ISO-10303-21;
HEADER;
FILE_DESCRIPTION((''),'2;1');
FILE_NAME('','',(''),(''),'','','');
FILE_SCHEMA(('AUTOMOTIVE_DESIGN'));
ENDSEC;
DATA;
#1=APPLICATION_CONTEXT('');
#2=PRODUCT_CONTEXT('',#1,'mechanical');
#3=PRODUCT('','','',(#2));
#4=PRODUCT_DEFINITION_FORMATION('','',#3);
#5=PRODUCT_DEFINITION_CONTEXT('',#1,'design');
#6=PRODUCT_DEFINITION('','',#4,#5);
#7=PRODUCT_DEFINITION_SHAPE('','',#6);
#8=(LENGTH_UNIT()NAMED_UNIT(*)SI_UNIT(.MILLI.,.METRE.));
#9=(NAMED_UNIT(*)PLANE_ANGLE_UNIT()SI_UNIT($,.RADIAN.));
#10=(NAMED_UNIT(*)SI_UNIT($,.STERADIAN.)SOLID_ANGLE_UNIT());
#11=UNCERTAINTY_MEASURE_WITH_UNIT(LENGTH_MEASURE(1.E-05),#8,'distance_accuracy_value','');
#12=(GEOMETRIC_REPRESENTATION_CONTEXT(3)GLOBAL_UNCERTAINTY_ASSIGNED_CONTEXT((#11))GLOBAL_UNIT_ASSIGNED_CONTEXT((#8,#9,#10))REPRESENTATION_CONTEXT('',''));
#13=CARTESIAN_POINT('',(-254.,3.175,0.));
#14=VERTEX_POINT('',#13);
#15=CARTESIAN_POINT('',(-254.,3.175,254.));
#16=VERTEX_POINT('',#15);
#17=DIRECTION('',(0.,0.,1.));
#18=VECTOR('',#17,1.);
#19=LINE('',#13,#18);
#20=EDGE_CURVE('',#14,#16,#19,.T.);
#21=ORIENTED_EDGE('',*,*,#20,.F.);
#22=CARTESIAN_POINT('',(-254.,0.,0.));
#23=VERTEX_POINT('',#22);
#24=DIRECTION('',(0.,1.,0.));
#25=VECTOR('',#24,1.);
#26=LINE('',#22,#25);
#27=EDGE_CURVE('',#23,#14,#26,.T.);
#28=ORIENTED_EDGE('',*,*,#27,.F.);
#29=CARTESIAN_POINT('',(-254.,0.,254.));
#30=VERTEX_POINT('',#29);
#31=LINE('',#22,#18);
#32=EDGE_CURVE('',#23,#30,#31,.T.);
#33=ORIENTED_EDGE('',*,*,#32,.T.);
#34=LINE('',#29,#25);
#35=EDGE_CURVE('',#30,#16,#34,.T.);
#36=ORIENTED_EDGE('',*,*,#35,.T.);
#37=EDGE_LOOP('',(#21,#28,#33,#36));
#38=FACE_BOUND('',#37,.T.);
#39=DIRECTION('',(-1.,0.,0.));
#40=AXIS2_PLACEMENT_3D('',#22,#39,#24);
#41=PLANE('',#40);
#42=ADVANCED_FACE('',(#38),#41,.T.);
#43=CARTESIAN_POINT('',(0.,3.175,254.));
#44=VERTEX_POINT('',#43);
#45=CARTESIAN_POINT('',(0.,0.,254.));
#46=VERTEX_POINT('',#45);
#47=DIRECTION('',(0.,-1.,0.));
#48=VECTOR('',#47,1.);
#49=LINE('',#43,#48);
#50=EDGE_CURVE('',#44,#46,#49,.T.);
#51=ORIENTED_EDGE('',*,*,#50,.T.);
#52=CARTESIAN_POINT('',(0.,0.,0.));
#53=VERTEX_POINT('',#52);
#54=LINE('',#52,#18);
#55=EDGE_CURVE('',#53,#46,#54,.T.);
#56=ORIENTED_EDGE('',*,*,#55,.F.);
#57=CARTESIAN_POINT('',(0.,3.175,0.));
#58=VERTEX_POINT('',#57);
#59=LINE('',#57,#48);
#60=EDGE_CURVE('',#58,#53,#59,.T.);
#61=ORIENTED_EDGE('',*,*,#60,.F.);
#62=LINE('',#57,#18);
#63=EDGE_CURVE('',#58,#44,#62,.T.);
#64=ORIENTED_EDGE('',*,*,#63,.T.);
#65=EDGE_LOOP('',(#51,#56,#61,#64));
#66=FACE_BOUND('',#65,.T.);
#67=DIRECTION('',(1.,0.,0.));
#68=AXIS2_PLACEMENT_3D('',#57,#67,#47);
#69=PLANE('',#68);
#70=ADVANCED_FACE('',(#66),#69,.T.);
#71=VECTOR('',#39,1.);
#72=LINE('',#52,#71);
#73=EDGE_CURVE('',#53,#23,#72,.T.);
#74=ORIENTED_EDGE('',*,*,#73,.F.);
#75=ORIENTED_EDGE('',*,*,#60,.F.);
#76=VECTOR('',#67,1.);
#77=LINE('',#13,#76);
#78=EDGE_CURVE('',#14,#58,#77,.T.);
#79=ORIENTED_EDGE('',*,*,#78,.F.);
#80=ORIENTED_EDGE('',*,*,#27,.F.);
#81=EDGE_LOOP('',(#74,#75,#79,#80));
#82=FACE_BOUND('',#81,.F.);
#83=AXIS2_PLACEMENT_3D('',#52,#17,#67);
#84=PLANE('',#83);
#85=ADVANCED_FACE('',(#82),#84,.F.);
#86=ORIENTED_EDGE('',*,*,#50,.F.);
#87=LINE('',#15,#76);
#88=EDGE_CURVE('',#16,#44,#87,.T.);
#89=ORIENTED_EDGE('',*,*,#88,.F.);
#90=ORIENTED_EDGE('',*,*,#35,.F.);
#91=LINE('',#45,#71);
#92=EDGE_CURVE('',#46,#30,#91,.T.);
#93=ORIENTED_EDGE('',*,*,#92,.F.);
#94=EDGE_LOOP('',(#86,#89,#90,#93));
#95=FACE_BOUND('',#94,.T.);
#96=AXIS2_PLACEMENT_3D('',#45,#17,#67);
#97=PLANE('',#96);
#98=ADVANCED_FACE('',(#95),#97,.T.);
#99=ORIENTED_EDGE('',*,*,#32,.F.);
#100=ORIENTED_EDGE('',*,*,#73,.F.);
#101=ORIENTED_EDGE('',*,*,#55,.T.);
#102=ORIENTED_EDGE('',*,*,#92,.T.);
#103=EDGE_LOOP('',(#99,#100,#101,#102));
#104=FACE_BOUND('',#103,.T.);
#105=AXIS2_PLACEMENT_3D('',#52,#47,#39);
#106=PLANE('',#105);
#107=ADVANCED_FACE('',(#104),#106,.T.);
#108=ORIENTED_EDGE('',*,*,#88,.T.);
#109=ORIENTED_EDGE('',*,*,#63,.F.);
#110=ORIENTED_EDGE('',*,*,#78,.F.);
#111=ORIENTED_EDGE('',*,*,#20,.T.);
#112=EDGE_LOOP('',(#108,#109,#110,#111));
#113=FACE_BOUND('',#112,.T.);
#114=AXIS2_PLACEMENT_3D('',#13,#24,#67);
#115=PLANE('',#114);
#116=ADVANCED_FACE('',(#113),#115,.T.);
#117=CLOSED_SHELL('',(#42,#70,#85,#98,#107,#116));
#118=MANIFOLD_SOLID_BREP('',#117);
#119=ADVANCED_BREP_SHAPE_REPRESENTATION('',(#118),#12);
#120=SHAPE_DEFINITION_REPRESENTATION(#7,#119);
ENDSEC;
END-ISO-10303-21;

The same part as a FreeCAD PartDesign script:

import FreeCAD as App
import Part
import Sketcher
from FreeCAD import Vector
Q = App.Units.Quantity

doc = App.newDocument("Part")
body = doc.addObject("PartDesign::Body", "Body")

sketch1 = doc.addObject("Sketcher::SketchObject", "Sketch")
body.addObject(sketch1)
sketch1.AttachmentSupport = (doc.XY_Plane, [""])
sketch1.MapMode = "FlatFace"
sketch1.addGeometry(Part.LineSegment(Vector(-254, 0, 0), Vector(0, 0, 0)), False)
sketch1.addGeometry(Part.LineSegment(Vector(0, 0, 0), Vector(0, 3.2, 0)), False)
sketch1.addGeometry(Part.LineSegment(Vector(0, 3.2, 0), Vector(-254, 3.2, 0)), False)
sketch1.addGeometry(Part.LineSegment(Vector(-254, 3.2, 0), Vector(-254, 0, 0)), False)
sketch1.addConstraint(Sketcher.Constraint("Coincident", 0, 2, 1, 1))
sketch1.addConstraint(Sketcher.Constraint("Coincident", 1, 2, 2, 1))
sketch1.addConstraint(Sketcher.Constraint("Coincident", 2, 2, 3, 1))
sketch1.addConstraint(Sketcher.Constraint("Coincident", 3, 2, 0, 1))
sketch1.addConstraint(Sketcher.Constraint("Horizontal", 0))
sketch1.addConstraint(Sketcher.Constraint("Vertical", 1))
sketch1.addConstraint(Sketcher.Constraint("Horizontal", 2))
sketch1.addConstraint(Sketcher.Constraint("Vertical", 3))
sketch1.addConstraint(Sketcher.Constraint("Coincident", 0, 2, -1, 1))
sketch1.addConstraint(Sketcher.Constraint("DistanceX", 0, 1, 0, 2, Q("10 in")))
sketch1.addConstraint(Sketcher.Constraint("DistanceY", 1, 1, 1, 2, Q("0.125 in")))
pad1 = doc.addObject("PartDesign::Pad", "Pad")
body.addObject(pad1)
pad1.Profile = sketch1
pad1.Length = Q("10 in")

doc.recompute()
